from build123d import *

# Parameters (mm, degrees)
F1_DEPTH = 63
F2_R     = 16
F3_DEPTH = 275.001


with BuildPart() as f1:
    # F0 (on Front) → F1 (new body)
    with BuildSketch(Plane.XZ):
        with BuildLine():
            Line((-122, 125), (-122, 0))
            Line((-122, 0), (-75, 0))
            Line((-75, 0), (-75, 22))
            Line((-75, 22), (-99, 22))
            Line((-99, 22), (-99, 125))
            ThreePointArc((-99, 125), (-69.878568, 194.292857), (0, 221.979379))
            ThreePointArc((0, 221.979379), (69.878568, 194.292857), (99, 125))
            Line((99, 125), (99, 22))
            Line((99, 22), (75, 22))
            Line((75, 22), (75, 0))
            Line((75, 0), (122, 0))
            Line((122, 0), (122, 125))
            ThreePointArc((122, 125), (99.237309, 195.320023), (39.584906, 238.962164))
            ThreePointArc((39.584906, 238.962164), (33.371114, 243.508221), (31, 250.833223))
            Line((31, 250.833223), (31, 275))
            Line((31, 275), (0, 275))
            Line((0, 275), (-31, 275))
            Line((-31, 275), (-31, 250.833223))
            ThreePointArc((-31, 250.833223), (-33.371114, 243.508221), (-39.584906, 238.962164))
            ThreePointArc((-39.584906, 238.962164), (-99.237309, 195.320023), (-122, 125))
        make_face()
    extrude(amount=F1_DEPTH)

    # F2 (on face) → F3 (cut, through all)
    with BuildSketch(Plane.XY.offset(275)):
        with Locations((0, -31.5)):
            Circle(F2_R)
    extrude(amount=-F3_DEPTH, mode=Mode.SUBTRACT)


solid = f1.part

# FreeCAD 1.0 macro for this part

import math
import FreeCAD as App
import Part
import Sketcher
from FreeCAD import Vector

doc = App.newDocument("Part")
body = doc.addObject("PartDesign::Body", "Body")

sketch1 = body.newObject("Sketcher::SketchObject", "Sketch")
sketch1.AttachmentSupport = (doc.getObject("XZ_Plane"), [""])
sketch1.MapMode = "FlatFace"
sketch1.addGeometry(Part.LineSegment(Vector(-122, 125, 0), Vector(-122, 0, 0)), False)
sketch1.addGeometry(Part.LineSegment(Vector(-122, 0, 0), Vector(-75, 0, 0)), False)
sketch1.addGeometry(Part.LineSegment(Vector(-75, 0, 0), Vector(-75, 22, 0)), False)
sketch1.addGeometry(Part.LineSegment(Vector(-75, 22, 0), Vector(-99, 22, 0)), False)
sketch1.addGeometry(Part.LineSegment(Vector(-99, 22, 0), Vector(-99, 125, 0)), False)
sketch1.addGeometry(Part.ArcOfCircle(Part.Circle(Vector(-2.000001, 125, 0), Vector(0, 0, 1), 96.999999), math.radians(88.81856), math.radians(180)), False)
sketch1.addGeometry(Part.ArcOfCircle(Part.Circle(Vector(2.000001, 125, 0), Vector(0, 0, 1), 96.999999), math.radians(0), math.radians(91.18144)), False)
sketch1.addGeometry(Part.LineSegment(Vector(99, 125, 0), Vector(99, 22, 0)), False)
sketch1.addGeometry(Part.LineSegment(Vector(99, 22, 0), Vector(75, 22, 0)), False)
sketch1.addGeometry(Part.LineSegment(Vector(75, 22, 0), Vector(75, 0, 0)), False)
sketch1.addGeometry(Part.LineSegment(Vector(75, 0, 0), Vector(122, 0, 0)), False)
sketch1.addGeometry(Part.LineSegment(Vector(122, 0, 0), Vector(122, 125, 0)), False)
sketch1.addGeometry(Part.ArcOfCircle(Part.Circle(Vector(1.999998, 124.999999, 0), Vector(0, 0, 1), 120.000002), math.radians(0.000001), math.radians(71.74736)), False)
sketch1.addGeometry(Part.ArcOfCircle(Part.Circle(Vector(43.500003, 250.833225, 0), Vector(0, 0, 1), 12.500003), math.radians(-179.999992), math.radians(-108.252646)), False)
sketch1.addGeometry(Part.LineSegment(Vector(31, 250.833223, 0), Vector(31, 275, 0)), False)
sketch1.addGeometry(Part.LineSegment(Vector(31, 275, 0), Vector(-31, 275, 0)), False)
sketch1.addGeometry(Part.LineSegment(Vector(-31, 275, 0), Vector(-31, 250.833223, 0)), False)
sketch1.addGeometry(Part.ArcOfCircle(Part.Circle(Vector(-43.500003, 250.833225, 0), Vector(0, 0, 1), 12.500003), math.radians(-71.747354), math.radians(-0.000008)), False)
sketch1.addGeometry(Part.ArcOfCircle(Part.Circle(Vector(-1.999998, 124.999999, 0), Vector(0, 0, 1), 120.000002), math.radians(108.25264), math.radians(179.999999)), False)
sketch1.addConstraint(Sketcher.Constraint("Coincident", 0, 2, 1, 1))
sketch1.addConstraint(Sketcher.Constraint("Coincident", 1, 2, 2, 1))
sketch1.addConstraint(Sketcher.Constraint("Coincident", 2, 2, 3, 1))
sketch1.addConstraint(Sketcher.Constraint("Coincident", 3, 2, 4, 1))
sketch1.addConstraint(Sketcher.Constraint("Tangent", 4, 2, 5, 2))
sketch1.addConstraint(Sketcher.Constraint("Coincident", 5, 1, 6, 2))
sketch1.addConstraint(Sketcher.Constraint("Tangent", 6, 1, 7, 1))
sketch1.addConstraint(Sketcher.Constraint("Coincident", 7, 2, 8, 1))
sketch1.addConstraint(Sketcher.Constraint("Coincident", 8, 2, 9, 1))
sketch1.addConstraint(Sketcher.Constraint("Coincident", 9, 2, 10, 1))
sketch1.addConstraint(Sketcher.Constraint("Coincident", 10, 2, 11, 1))
sketch1.addConstraint(Sketcher.Constraint("Tangent", 11, 2, 12, 1))
sketch1.addConstraint(Sketcher.Constraint("Tangent", 12, 2, 13, 2))
sketch1.addConstraint(Sketcher.Constraint("Tangent", 13, 1, 14, 1))
sketch1.addConstraint(Sketcher.Constraint("Coincident", 14, 2, 15, 1))
sketch1.addConstraint(Sketcher.Constraint("Coincident", 15, 2, 16, 1))
sketch1.addConstraint(Sketcher.Constraint("Tangent", 16, 2, 17, 2))
sketch1.addConstraint(Sketcher.Constraint("Tangent", 17, 1, 18, 1))
sketch1.addConstraint(Sketcher.Constraint("Tangent", 18, 2, 0, 1))
sketch1.addConstraint(Sketcher.Constraint("Vertical", 0))
sketch1.addConstraint(Sketcher.Constraint("Horizontal", 1))
sketch1.addConstraint(Sketcher.Constraint("Vertical", 2))
sketch1.addConstraint(Sketcher.Constraint("Horizontal", 3))
sketch1.addConstraint(Sketcher.Constraint("Vertical", 4))
sketch1.addConstraint(Sketcher.Constraint("Vertical", 7))
sketch1.addConstraint(Sketcher.Constraint("Horizontal", 8))
sketch1.addConstraint(Sketcher.Constraint("Vertical", 9))
sketch1.addConstraint(Sketcher.Constraint("Horizontal", 10))
sketch1.addConstraint(Sketcher.Constraint("Vertical", 11))
sketch1.addConstraint(Sketcher.Constraint("Vertical", 14))
sketch1.addConstraint(Sketcher.Constraint("Horizontal", 15))
sketch1.addConstraint(Sketcher.Constraint("Vertical", 16))
sketch1.addConstraint(Sketcher.Constraint("Coincident", 12, 3, 6, 3))
sketch1.addConstraint(Sketcher.Constraint("Coincident", 18, 3, 5, 3))
sketch1.addConstraint(Sketcher.Constraint("Equal", 5, 6))
sketch1.addConstraint(Sketcher.Constraint("Equal", 13, 17))
sketch1.addConstraint(Sketcher.Constraint("Equal", 12, 18))
sketch1.addConstraint(Sketcher.Constraint("Symmetric", 1, 2, 9, 2, -1, 1))
sketch1.addConstraint(Sketcher.Constraint("Symmetric", 5, 3, 6, 3, -2))
sketch1.addConstraint(Sketcher.Constraint("PointOnObject", 0, 2, -1))
sketch1.addConstraint(Sketcher.Constraint("Horizontal", 13, 3, 17, 3))
sketch1.addConstraint(Sketcher.Constraint("Horizontal", 3, 2, 7, 2))
sketch1.addConstraint(Sketcher.Constraint("Radius", 5, 96.999999))
sketch1.addConstraint(Sketcher.Constraint("Radius", 12, 120.000002))
sketch1.addConstraint(Sketcher.Constraint("DistanceX", 1, 1, 1, 2, 47.0))
sketch1.addConstraint(Sketcher.Constraint("DistanceX", 15, 2, 15, 1, 62.0))
sketch1.addConstraint(Sketcher.Constraint("DistanceY", 0, 2, 0, 1, 125.0))
sketch1.addConstraint(Sketcher.Constraint("DistanceY", 2, 1, 2, 2, 22.0))
sketch1.addConstraint(Sketcher.Constraint("DistanceX", 5, 3, -1, 1, 2.000001))
sketch1.addConstraint(Sketcher.Constraint("DistanceY", -1, 1, 14, 2, 275.0))
sketch1.addConstraint(Sketcher.Constraint("DistanceX", 6, 3, 13, 3, 41.500002))
pad1 = body.newObject("PartDesign::Pad", "Pad")
pad1.Profile = sketch1
pad1.Length = 63

sketch2 = body.newObject("Sketcher::SketchObject", "Sketch001")
sketch2.AttachmentSupport = (doc.getObject("XY_Plane"), [""])
sketch2.MapMode = "FlatFace"
sketch2.AttachmentOffset = App.Placement(Vector(0, 0, 275), App.Rotation())
sketch2.addGeometry(Part.Circle(Vector(0, -31.5, 0), Vector(0, 0, 1), 16), False)
sketch2.addConstraint(Sketcher.Constraint("PointOnObject", 0, 3, -2))
sketch2.addConstraint(Sketcher.Constraint("Diameter", 0, 32.0))
sketch2.addConstraint(Sketcher.Constraint("DistanceY", 0, 3, -1, 1, 31.5))
pocket1 = body.newObject("PartDesign::Pocket", "Pocket")
pocket1.Profile = sketch2
pocket1.Type = "ThroughAll"

doc.recompute()
